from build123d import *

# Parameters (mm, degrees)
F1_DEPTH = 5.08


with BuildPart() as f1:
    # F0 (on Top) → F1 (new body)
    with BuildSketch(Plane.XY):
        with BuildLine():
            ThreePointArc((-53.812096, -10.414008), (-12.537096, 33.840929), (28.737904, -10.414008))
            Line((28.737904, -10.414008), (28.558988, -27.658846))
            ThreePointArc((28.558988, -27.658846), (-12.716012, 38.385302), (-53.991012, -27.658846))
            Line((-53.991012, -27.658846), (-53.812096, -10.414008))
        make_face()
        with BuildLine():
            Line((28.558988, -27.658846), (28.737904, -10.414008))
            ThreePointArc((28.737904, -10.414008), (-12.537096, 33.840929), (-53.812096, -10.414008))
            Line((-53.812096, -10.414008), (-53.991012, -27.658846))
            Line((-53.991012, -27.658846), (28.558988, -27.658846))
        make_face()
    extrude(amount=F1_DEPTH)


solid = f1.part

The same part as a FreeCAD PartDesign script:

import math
import FreeCAD as App
import Part
import Sketcher
from FreeCAD import Vector
Q = App.Units.Quantity

doc = App.newDocument("Part")
body = doc.addObject("PartDesign::Body", "Body")

# Sketch on XY plane
sketch1 = body.newObject("Sketcher::SketchObject", "Sketch")
sketch1.AttachmentSupport = (doc.getObject("XY_Plane"), [""])
sketch1.MapMode = "FlatFace"
sketch1.addGeometry([
    Part.ArcOfCircle(Part.Circle(Vector(-13, -8, 0), Vector(0, 0, 1), 46), math.radians(-26), math.radians(206)),
    Part.LineSegment(Vector(-54, -28, 0), Vector(29, -28, 0)),
], False)
sketch1.addConstraint([
    Sketcher.Constraint("Coincident", 0, 1, 1, 2),
    Sketcher.Constraint("Coincident", 1, 1, 0, 2),
    Sketcher.Constraint("Horizontal", 1),
    Sketcher.Constraint("DistanceX", 1, 1, 1, 2, Q("3.25 in")),
    Sketcher.Constraint("Radius", 0, 45.919701),
    Sketcher.Constraint("DistanceY", 0, 3, -1, 1, 7.534399),
    Sketcher.Constraint("DistanceX", 0, 3, -1, 1, 12.716012),
])
pad1 = body.newObject("PartDesign::Pad", "Pad")
pad1.Profile = sketch1
pad1.Length = Q("0.2 in")

doc.recompute()
